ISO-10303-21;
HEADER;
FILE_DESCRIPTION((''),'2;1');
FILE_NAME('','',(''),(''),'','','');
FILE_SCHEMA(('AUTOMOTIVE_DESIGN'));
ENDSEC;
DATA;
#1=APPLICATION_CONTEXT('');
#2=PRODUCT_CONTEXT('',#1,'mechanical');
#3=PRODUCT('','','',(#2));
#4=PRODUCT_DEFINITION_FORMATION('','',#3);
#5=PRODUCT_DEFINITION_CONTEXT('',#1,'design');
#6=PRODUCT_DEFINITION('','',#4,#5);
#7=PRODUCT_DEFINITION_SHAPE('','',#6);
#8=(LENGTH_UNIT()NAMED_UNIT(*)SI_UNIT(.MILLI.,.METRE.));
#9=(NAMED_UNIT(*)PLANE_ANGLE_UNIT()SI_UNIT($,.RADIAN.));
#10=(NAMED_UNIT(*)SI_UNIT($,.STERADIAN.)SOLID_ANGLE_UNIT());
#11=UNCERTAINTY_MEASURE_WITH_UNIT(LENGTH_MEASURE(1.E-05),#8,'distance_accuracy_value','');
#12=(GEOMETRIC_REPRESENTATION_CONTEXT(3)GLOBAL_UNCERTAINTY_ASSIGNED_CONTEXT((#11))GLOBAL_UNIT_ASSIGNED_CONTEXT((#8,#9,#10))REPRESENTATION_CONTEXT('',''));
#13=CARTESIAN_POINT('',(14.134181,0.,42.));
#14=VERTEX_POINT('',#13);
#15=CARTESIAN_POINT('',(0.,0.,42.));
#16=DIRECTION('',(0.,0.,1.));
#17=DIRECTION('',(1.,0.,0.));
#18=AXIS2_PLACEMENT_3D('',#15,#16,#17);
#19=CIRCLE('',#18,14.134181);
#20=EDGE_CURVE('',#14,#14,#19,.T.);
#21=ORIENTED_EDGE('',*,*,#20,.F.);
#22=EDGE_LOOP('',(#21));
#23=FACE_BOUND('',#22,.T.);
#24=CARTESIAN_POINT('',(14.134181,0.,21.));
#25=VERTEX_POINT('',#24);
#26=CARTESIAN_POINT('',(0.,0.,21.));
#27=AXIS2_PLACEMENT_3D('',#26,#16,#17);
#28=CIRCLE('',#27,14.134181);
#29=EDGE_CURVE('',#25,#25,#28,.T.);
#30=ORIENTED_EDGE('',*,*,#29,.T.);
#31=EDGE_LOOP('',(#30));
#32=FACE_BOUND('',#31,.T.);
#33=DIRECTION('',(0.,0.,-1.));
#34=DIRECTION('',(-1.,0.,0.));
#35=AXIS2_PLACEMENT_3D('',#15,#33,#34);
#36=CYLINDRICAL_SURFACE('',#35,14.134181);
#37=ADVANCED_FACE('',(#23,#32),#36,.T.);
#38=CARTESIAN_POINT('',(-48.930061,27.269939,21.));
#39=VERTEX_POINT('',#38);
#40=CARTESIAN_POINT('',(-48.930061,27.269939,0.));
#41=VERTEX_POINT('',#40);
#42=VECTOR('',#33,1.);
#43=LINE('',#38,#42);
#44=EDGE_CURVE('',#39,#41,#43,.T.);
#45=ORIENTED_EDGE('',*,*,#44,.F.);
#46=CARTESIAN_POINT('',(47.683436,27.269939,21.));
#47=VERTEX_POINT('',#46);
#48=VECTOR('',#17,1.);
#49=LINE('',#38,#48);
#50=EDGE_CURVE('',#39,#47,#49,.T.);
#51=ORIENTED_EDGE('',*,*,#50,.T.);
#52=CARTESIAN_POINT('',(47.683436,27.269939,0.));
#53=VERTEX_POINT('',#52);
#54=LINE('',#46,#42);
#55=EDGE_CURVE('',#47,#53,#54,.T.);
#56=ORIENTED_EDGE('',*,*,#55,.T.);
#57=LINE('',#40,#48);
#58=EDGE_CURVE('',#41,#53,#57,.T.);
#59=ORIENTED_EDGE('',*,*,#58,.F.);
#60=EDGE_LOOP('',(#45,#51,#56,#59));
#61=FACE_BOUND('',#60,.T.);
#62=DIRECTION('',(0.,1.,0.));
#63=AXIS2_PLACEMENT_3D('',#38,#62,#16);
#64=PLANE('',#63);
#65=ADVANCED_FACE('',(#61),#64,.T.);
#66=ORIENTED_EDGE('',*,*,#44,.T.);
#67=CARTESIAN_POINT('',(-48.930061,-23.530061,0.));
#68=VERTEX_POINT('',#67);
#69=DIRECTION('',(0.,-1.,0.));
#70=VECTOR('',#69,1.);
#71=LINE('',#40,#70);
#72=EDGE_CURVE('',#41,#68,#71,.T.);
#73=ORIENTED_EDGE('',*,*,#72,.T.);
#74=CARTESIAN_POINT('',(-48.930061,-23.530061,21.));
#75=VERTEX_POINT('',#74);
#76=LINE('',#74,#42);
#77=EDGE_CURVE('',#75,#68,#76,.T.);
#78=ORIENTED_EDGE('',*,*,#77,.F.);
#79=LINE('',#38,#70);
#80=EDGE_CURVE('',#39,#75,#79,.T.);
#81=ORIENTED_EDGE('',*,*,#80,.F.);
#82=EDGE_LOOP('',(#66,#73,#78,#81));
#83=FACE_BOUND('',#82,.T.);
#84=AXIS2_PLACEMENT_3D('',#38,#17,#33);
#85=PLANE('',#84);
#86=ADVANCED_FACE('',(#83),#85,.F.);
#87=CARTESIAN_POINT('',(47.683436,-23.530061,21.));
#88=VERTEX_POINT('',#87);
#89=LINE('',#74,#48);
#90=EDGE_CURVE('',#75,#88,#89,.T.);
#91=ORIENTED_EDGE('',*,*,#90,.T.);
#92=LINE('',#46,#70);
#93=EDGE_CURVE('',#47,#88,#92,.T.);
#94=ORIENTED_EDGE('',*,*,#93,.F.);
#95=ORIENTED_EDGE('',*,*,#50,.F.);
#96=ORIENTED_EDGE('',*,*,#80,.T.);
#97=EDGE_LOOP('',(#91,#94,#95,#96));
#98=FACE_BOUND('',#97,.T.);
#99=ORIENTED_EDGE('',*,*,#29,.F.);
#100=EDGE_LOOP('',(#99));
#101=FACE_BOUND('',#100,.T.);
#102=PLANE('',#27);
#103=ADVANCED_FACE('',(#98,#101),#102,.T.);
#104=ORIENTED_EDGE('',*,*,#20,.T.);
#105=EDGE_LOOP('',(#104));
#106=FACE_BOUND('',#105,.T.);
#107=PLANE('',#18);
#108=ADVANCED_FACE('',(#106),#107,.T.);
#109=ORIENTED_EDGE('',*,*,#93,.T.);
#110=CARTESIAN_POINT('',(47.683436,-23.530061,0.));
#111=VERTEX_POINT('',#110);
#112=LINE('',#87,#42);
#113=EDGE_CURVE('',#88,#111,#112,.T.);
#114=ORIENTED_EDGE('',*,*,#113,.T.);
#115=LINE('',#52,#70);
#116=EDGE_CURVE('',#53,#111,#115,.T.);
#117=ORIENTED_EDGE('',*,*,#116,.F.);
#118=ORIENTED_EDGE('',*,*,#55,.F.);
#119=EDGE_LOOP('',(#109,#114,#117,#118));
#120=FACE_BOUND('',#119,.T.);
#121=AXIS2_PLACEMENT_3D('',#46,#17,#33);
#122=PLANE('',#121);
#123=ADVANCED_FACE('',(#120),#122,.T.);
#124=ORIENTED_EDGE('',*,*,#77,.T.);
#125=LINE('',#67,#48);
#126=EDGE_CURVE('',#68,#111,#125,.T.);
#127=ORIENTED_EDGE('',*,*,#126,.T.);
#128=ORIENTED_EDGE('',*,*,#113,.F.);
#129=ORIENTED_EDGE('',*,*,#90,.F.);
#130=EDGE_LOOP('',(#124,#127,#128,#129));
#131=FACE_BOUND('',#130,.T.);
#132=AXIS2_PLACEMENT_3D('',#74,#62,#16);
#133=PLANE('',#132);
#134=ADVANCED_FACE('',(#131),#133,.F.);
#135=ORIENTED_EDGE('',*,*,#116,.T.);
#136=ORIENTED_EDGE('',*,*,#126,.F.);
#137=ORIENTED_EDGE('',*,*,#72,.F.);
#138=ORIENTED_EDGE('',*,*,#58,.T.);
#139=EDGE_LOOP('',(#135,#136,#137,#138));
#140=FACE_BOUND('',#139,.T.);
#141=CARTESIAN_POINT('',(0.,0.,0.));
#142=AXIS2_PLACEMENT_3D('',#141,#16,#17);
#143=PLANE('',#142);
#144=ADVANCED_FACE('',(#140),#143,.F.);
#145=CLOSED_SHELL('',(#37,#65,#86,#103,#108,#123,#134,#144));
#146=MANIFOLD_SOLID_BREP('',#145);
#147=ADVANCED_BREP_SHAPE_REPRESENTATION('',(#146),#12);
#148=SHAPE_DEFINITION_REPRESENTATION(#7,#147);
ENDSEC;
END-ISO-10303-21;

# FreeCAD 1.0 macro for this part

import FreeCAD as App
import Part
import Sketcher
from FreeCAD import Vector
Q = App.Units.Quantity

doc = App.newDocument("Part")
body = doc.addObject("PartDesign::Body", "Body")

# Sketch on XY plane
sketch1 = body.newObject("Sketcher::SketchObject", "Sketch")
sketch1.AttachmentSupport = (doc.getObject("XY_Plane"), [""])
sketch1.MapMode = "FlatFace"
sketch1.addGeometry([
    Part.LineSegment(Vector(-49, 27, 0), Vector(-49, -24, 0)),
    Part.LineSegment(Vector(-49, -24, 0), Vector(48, -24, 0)),
    Part.LineSegment(Vector(48, -24, 0), Vector(48, 27, 0)),
    Part.LineSegment(Vector(48, 27, 0), Vector(-49, 27, 0)),
], False)
sketch1.addConstraint([
    Sketcher.Constraint("Coincident", 0, 2, 1, 1),
    Sketcher.Constraint("Coincident", 1, 2, 2, 1),
    Sketcher.Constraint("Coincident", 2, 2, 3, 1),
    Sketcher.Constraint("Coincident", 3, 2, 0, 1),
    Sketcher.Constraint("Vertical", 0),
    Sketcher.Constraint("Horizontal", 1),
    Sketcher.Constraint("Vertical", 2),
    Sketcher.Constraint("Horizontal", 3),
    Sketcher.Constraint("DistanceY", 0, 2, 0, 1, Q("50.8 mm")),
    Sketcher.Constraint("DistanceX", 1, 1, 1, 2, Q("96.613497 mm")),
    Sketcher.Constraint("DistanceX", 0, 2, -1, 1, Q("48.930061 mm")),
    Sketcher.Constraint("DistanceY", 0, 2, -1, 1, Q("23.530061 mm")),
])
pad1 = body.newObject("PartDesign::Pad", "Pad")
pad1.Profile = sketch1
pad1.Length = 21

# Sketch on XY plane
sketch2 = body.newObject("Sketcher::SketchObject", "Sketch001")
sketch2.AttachmentSupport = (doc.getObject("XY_Plane"), [""])
sketch2.MapMode = "FlatFace"
sketch2.AttachmentOffset = App.Placement(Vector(0, 0, 21), App.Rotation())
sketch2.addGeometry(Part.Circle(Vector(0, 0, 0), Vector(0, 0, 1), 14), False)
sketch2.addConstraint([
    Sketcher.Constraint("Coincident", 0, 3, -1, 1),
    Sketcher.Constraint("Diameter", 0, Q("28.268362 mm")),
])
pad2 = body.newObject("PartDesign::Pad", "Pad001")
pad2.Profile = sketch2
pad2.Length = 21

doc.recompute()
